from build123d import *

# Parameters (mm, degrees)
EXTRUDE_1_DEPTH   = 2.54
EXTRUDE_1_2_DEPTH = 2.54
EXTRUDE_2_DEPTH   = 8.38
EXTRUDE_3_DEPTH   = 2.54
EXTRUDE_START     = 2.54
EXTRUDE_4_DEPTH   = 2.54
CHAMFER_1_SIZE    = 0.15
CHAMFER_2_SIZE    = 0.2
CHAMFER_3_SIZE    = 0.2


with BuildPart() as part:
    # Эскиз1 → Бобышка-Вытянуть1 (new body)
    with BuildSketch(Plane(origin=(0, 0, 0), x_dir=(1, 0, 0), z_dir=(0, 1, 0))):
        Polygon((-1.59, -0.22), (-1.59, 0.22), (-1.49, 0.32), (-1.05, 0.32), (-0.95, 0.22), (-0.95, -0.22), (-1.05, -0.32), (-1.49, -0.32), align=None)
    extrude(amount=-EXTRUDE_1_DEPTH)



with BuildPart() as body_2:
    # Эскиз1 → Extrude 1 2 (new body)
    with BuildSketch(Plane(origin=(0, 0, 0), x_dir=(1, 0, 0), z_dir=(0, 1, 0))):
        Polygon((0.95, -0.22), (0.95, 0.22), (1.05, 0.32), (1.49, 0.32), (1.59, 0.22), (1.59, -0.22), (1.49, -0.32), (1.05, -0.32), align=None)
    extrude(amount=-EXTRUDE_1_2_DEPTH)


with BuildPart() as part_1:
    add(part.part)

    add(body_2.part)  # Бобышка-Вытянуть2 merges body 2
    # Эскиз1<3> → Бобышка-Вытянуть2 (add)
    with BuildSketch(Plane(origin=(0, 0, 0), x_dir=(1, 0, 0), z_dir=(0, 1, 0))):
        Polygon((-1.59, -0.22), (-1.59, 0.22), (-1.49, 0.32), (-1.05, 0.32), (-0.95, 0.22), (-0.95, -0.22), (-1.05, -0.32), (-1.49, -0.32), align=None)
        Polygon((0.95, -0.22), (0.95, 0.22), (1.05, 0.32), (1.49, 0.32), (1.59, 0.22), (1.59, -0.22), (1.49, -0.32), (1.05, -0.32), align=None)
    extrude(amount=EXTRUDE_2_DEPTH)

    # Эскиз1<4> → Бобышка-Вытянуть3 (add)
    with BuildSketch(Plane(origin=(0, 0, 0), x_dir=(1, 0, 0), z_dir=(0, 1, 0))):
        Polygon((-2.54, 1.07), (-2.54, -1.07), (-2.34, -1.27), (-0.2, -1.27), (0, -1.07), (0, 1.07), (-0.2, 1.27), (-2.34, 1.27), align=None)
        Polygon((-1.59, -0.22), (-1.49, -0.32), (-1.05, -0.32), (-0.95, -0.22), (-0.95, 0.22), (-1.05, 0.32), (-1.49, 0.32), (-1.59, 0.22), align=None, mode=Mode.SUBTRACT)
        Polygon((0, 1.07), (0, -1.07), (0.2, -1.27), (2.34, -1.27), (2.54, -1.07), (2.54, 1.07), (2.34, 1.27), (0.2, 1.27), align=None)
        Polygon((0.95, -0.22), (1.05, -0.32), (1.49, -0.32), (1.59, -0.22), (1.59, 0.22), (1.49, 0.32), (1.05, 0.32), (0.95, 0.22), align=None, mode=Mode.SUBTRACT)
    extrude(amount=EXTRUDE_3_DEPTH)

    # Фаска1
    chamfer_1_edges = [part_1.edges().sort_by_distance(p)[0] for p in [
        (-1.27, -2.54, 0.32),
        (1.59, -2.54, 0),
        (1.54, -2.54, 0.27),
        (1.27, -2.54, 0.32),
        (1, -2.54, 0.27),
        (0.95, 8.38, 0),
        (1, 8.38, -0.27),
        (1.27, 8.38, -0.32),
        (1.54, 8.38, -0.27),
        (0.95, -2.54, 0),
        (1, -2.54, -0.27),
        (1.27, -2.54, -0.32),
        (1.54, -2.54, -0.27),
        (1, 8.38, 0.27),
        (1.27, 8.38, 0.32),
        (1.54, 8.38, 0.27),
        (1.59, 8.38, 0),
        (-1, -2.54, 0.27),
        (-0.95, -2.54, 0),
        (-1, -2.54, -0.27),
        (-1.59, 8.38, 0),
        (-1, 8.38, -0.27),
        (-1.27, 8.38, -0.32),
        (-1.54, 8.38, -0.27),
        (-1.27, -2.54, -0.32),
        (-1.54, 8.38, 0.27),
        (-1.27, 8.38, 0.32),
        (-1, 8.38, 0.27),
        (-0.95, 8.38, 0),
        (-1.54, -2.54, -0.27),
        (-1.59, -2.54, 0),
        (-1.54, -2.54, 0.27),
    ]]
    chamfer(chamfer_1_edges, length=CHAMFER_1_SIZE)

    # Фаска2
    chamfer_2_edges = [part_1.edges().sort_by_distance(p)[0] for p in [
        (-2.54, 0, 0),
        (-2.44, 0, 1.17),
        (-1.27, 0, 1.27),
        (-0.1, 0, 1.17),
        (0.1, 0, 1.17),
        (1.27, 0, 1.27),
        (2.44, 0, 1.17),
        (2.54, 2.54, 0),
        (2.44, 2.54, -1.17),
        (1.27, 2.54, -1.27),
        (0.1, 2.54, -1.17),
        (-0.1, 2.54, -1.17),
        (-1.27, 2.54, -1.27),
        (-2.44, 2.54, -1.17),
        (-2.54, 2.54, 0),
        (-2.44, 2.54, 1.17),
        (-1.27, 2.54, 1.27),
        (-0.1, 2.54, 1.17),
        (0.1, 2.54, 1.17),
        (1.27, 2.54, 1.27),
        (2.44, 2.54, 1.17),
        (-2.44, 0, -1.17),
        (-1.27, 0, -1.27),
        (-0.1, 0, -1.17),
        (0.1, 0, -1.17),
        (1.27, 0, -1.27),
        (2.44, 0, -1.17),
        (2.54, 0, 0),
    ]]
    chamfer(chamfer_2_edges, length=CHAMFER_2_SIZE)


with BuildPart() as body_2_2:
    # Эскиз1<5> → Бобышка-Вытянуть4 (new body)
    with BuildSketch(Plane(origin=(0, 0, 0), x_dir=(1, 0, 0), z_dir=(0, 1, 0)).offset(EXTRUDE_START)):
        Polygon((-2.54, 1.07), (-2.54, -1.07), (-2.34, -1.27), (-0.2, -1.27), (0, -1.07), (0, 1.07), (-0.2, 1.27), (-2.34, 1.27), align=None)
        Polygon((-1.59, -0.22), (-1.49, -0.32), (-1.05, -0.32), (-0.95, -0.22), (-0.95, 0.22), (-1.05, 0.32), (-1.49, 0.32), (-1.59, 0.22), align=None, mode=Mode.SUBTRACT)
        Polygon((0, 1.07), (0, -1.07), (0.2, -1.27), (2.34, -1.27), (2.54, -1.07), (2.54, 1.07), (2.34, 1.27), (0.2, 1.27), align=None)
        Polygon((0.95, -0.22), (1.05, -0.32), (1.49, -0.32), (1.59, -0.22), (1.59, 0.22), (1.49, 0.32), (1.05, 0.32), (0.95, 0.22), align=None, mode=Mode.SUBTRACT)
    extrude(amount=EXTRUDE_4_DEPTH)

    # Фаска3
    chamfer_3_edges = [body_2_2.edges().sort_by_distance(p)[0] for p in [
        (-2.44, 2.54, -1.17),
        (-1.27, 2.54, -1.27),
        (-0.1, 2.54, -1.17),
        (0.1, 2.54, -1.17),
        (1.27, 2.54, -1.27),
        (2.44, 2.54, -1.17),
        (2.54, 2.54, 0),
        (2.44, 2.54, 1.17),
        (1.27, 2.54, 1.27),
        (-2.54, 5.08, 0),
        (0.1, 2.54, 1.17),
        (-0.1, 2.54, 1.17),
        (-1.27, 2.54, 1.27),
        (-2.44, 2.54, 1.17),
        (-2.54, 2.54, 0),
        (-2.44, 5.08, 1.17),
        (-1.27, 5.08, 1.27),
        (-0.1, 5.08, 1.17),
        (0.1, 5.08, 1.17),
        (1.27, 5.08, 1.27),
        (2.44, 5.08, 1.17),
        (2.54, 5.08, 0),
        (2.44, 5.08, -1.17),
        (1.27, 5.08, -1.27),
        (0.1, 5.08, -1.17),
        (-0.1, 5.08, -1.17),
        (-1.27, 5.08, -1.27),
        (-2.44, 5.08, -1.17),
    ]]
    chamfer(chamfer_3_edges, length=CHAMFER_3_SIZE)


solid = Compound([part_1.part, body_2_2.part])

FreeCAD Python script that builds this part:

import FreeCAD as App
import Part
import Sketcher

V = App.Vector


def edges_at(feature, points):
    """Names of the edges that pass closest to the given points."""
    edges = feature.Shape.Edges
    near = lambda p: min(range(len(edges)), key=lambda i: edges[i].distToShape(Part.Vertex(*p))[0])
    return sorted({f"Edge{near(p) + 1}" for p in points})

doc = App.newDocument("Part")
body = doc.addObject("PartDesign::Body", "Body")

# Sketch on XZ plane
sketch1 = body.newObject("Sketcher::SketchObject", "Sketch")
sketch1.AttachmentSupport = (doc.getObject("XZ_Plane"), [""])
sketch1.MapMode = "FlatFace"
sketch1.addGeometry(Part.LineSegment(V(-1.59, -0.22, 0), V(-1.59, 0.22, 0)), False)
sketch1.addGeometry(Part.LineSegment(V(-1.59, 0.22, 0), V(-1.49, 0.32, 0)), False)
sketch1.addGeometry(Part.LineSegment(V(-1.49, 0.32, 0), V(-1.05, 0.32, 0)), False)
sketch1.addGeometry(Part.LineSegment(V(-1.05, 0.32, 0), V(-0.95, 0.22, 0)), False)
sketch1.addGeometry(Part.LineSegment(V(-0.95, 0.22, 0), V(-0.95, -0.22, 0)), False)
sketch1.addGeometry(Part.LineSegment(V(-0.95, -0.22, 0), V(-1.05, -0.32, 0)), False)
sketch1.addGeometry(Part.LineSegment(V(-1.05, -0.32, 0), V(-1.49, -0.32, 0)), False)
sketch1.addGeometry(Part.LineSegment(V(-1.49, -0.32, 0), V(-1.59, -0.22, 0)), False)
sketch1.addConstraint(Sketcher.Constraint("Coincident", 0, 2, 1, 1))
sketch1.addConstraint(Sketcher.Constraint("Coincident", 1, 2, 2, 1))
sketch1.addConstraint(Sketcher.Constraint("Coincident", 2, 2, 3, 1))
sketch1.addConstraint(Sketcher.Constraint("Coincident", 3, 2, 4, 1))
sketch1.addConstraint(Sketcher.Constraint("Coincident", 4, 2, 5, 1))
sketch1.addConstraint(Sketcher.Constraint("Coincident", 5, 2, 6, 1))
sketch1.addConstraint(Sketcher.Constraint("Coincident", 6, 2, 7, 1))
sketch1.addConstraint(Sketcher.Constraint("Coincident", 7, 2, 0, 1))
sketch1.addConstraint(Sketcher.Constraint("Vertical", 0))
sketch1.addConstraint(Sketcher.Constraint("Horizontal", 2))
sketch1.addConstraint(Sketcher.Constraint("Vertical", 4))
sketch1.addConstraint(Sketcher.Constraint("Horizontal", 6))
sketch1.addConstraint(Sketcher.Constraint("Symmetric", 2, 2, 5, 2, -1))
sketch1.addConstraint(Sketcher.Constraint("Perpendicular", 1, 3))
sketch1.addConstraint(Sketcher.Constraint("Perpendicular", 3, 5))
sketch1.addConstraint(Sketcher.Constraint("Perpendicular", 5, 7))
sketch1.addConstraint(Sketcher.Constraint("Horizontal", 0, 2, 3, 2))
sketch1.addConstraint(Sketcher.Constraint("Horizontal", 4, 2, 7, 2))
sketch1.addConstraint(Sketcher.Constraint("Vertical", 1, 2, 6, 2))
sketch1.addConstraint(Sketcher.Constraint("Equal", 6, 0))
sketch1.addConstraint(Sketcher.Constraint("DistanceX", 2, 1, 2, 2, 0.44))
sketch1.addConstraint(Sketcher.Constraint("DistanceX", 0, 2, 1, 2, 0.1))
sketch1.addConstraint(Sketcher.Constraint("DistanceX", 0, 2, -1, 1, 1.59))
pad1 = body.newObject("PartDesign::Pad", "Pad")
pad1.Profile = sketch1
pad1.Length = 2.54
body2 = doc.addObject("PartDesign::Body", "Body001")

# Sketch on XZ plane
sketch2 = body2.newObject("Sketcher::SketchObject", "Sketch001")
sketch2.AttachmentSupport = (doc.getObject("XZ_Plane001"), [""])
sketch2.MapMode = "FlatFace"
sketch2.addGeometry(Part.LineSegment(V(0.95, -0.22, 0), V(0.95, 0.22, 0)), False)
sketch2.addGeometry(Part.LineSegment(V(0.95, 0.22, 0), V(1.05, 0.32, 0)), False)
sketch2.addGeometry(Part.LineSegment(V(1.05, 0.32, 0), V(1.49, 0.32, 0)), False)
sketch2.addGeometry(Part.LineSegment(V(1.49, 0.32, 0), V(1.59, 0.22, 0)), False)
sketch2.addGeometry(Part.LineSegment(V(1.59, 0.22, 0), V(1.59, -0.22, 0)), False)
sketch2.addGeometry(Part.LineSegment(V(1.59, -0.22, 0), V(1.49, -0.32, 0)), False)
sketch2.addGeometry(Part.LineSegment(V(1.49, -0.32, 0), V(1.05, -0.32, 0)), False)
sketch2.addGeometry(Part.LineSegment(V(1.05, -0.32, 0), V(0.95, -0.22, 0)), False)
sketch2.addConstraint(Sketcher.Constraint("Coincident", 0, 2, 1, 1))
sketch2.addConstraint(Sketcher.Constraint("Coincident", 1, 2, 2, 1))
sketch2.addConstraint(Sketcher.Constraint("Coincident", 2, 2, 3, 1))
sketch2.addConstraint(Sketcher.Constraint("Coincident", 3, 2, 4, 1))
sketch2.addConstraint(Sketcher.Constraint("Coincident", 4, 2, 5, 1))
sketch2.addConstraint(Sketcher.Constraint("Coincident", 5, 2, 6, 1))
sketch2.addConstraint(Sketcher.Constraint("Coincident", 6, 2, 7, 1))
sketch2.addConstraint(Sketcher.Constraint("Coincident", 7, 2, 0, 1))
sketch2.addConstraint(Sketcher.Constraint("Vertical", 0))
sketch2.addConstraint(Sketcher.Constraint("Horizontal", 2))
sketch2.addConstraint(Sketcher.Constraint("Vertical", 4))
sketch2.addConstraint(Sketcher.Constraint("Horizontal", 6))
sketch2.addConstraint(Sketcher.Constraint("Symmetric", 2, 2, 5, 2, -1))
sketch2.addConstraint(Sketcher.Constraint("Perpendicular", 1, 3))
sketch2.addConstraint(Sketcher.Constraint("Perpendicular", 3, 5))
sketch2.addConstraint(Sketcher.Constraint("Perpendicular", 5, 7))
sketch2.addConstraint(Sketcher.Constraint("Horizontal", 0, 2, 3, 2))
sketch2.addConstraint(Sketcher.Constraint("Horizontal", 4, 2, 7, 2))
sketch2.addConstraint(Sketcher.Constraint("Vertical", 1, 2, 6, 2))
sketch2.addConstraint(Sketcher.Constraint("Equal", 6, 0))
sketch2.addConstraint(Sketcher.Constraint("DistanceX", 2, 1, 2, 2, 0.44))
sketch2.addConstraint(Sketcher.Constraint("DistanceX", 0, 2, 1, 2, 0.1))
sketch2.addConstraint(Sketcher.Constraint("DistanceX", -1, 1, 0, 2, 0.95))
pad2 = body2.newObject("PartDesign::Pad", "Pad001")
pad2.Profile = sketch2
pad2.Length = 2.54
body.AllowCompound = True
doc.recompute()

boolean = body.newObject("PartDesign::Boolean", "Boolean")
boolean.Type = "Fuse"
boolean.addObjects([body2])

# Sketch on XZ plane
sketch3 = body.newObject("Sketcher::SketchObject", "Sketch002")
sketch3.AttachmentSupport = (doc.getObject("XZ_Plane"), [""])
sketch3.MapMode = "FlatFace"
sketch3.addGeometry(Part.LineSegment(V(-1.59, -0.22, 0), V(-1.59, 0.22, 0)), False)
sketch3.addGeometry(Part.LineSegment(V(-1.59, 0.22, 0), V(-1.49, 0.32, 0)), False)
sketch3.addGeometry(Part.LineSegment(V(-1.49, 0.32, 0), V(-1.05, 0.32, 0)), False)
sketch3.addGeometry(Part.LineSegment(V(-1.05, 0.32, 0), V(-0.95, 0.22, 0)), False)
sketch3.addGeometry(Part.LineSegment(V(-0.95, 0.22, 0), V(-0.95, -0.22, 0)), False)
sketch3.addGeometry(Part.LineSegment(V(-0.95, -0.22, 0), V(-1.05, -0.32, 0)), False)
sketch3.addGeometry(Part.LineSegment(V(-1.05, -0.32, 0), V(-1.49, -0.32, 0)), False)
sketch3.addGeometry(Part.LineSegment(V(-1.49, -0.32, 0), V(-1.59, -0.22, 0)), False)
sketch3.addGeometry(Part.LineSegment(V(0.95, -0.22, 0), V(0.95, 0.22, 0)), False)
sketch3.addGeometry(Part.LineSegment(V(0.95, 0.22, 0), V(1.05, 0.32, 0)), False)
sketch3.addGeometry(Part.LineSegment(V(1.05, 0.32, 0), V(1.49, 0.32, 0)), False)
sketch3.addGeometry(Part.LineSegment(V(1.49, 0.32, 0), V(1.59, 0.22, 0)), False)
sketch3.addGeometry(Part.LineSegment(V(1.59, 0.22, 0), V(1.59, -0.22, 0)), False)
sketch3.addGeometry(Part.LineSegment(V(1.59, -0.22, 0), V(1.49, -0.32, 0)), False)
sketch3.addGeometry(Part.LineSegment(V(1.49, -0.32, 0), V(1.05, -0.32, 0)), False)
sketch3.addGeometry(Part.LineSegment(V(1.05, -0.32, 0), V(0.95, -0.22, 0)), False)
sketch3.addConstraint(Sketcher.Constraint("Coincident", 0, 2, 1, 1))
sketch3.addConstraint(Sketcher.Constraint("Coincident", 1, 2, 2, 1))
sketch3.addConstraint(Sketcher.Constraint("Coincident", 2, 2, 3, 1))
sketch3.addConstraint(Sketcher.Constraint("Coincident", 3, 2, 4, 1))
sketch3.addConstraint(Sketcher.Constraint("Coincident", 4, 2, 5, 1))
sketch3.addConstraint(Sketcher.Constraint("Coincident", 5, 2, 6, 1))
sketch3.addConstraint(Sketcher.Constraint("Coincident", 6, 2, 7, 1))
sketch3.addConstraint(Sketcher.Constraint("Coincident", 7, 2, 0, 1))
sketch3.addConstraint(Sketcher.Constraint("Coincident", 8, 2, 9, 1))
sketch3.addConstraint(Sketcher.Constraint("Coincident", 9, 2, 10, 1))
sketch3.addConstraint(Sketcher.Constraint("Coincident", 10, 2, 11, 1))
sketch3.addConstraint(Sketcher.Constraint("Coincident", 11, 2, 12, 1))
sketch3.addConstraint(Sketcher.Constraint("Coincident", 12, 2, 13, 1))
sketch3.addConstraint(Sketcher.Constraint("Coincident", 13, 2, 14, 1))
sketch3.addConstraint(Sketcher.Constraint("Coincident", 14, 2, 15, 1))
sketch3.addConstraint(Sketcher.Constraint("Coincident", 15, 2, 8, 1))
sketch3.addConstraint(Sketcher.Constraint("Vertical", 0))
sketch3.addConstraint(Sketcher.Constraint("Horizontal", 2))
sketch3.addConstraint(Sketcher.Constraint("Vertical", 4))
sketch3.addConstraint(Sketcher.Constraint("Horizontal", 6))
sketch3.addConstraint(Sketcher.Constraint("Vertical", 8))
sketch3.addConstraint(Sketcher.Constraint("Horizontal", 10))
sketch3.addConstraint(Sketcher.Constraint("Vertical", 12))
sketch3.addConstraint(Sketcher.Constraint("Horizontal", 14))
sketch3.addConstraint(Sketcher.Constraint("Symmetric", 4, 2, 8, 2, -1, 1))
sketch3.addConstraint(Sketcher.Constraint("Symmetric", 5, 2, 9, 2, -1, 1))
sketch3.addConstraint(Sketcher.Constraint("Symmetric", 7, 2, 11, 2, -1, 1))
sketch3.addConstraint(Sketcher.Constraint("Symmetric", 1, 2, 13, 2, -1, 1))
sketch3.addConstraint(Sketcher.Constraint("Symmetric", 2, 2, 9, 2, -2))
sketch3.addConstraint(Sketcher.Constraint("Perpendicular", 1, 3))
sketch3.addConstraint(Sketcher.Constraint("Perpendicular", 3, 5))
sketch3.addConstraint(Sketcher.Constraint("Perpendicular", 5, 7))
sketch3.addConstraint(Sketcher.Constraint("Perpendicular", 9, 11))
sketch3.addConstraint(Sketcher.Constraint("Perpendicular", 11, 13))
sketch3.addConstraint(Sketcher.Constraint("Perpendicular", 13, 15))
sketch3.addConstraint(Sketcher.Constraint("Horizontal", 0, 2, 3, 2))
sketch3.addConstraint(Sketcher.Constraint("Horizontal", 4, 2, 7, 2))
sketch3.addConstraint(Sketcher.Constraint("Horizontal", 3, 2, 8, 2))
sketch3.addConstraint(Sketcher.Constraint("Horizontal", 12, 2, 15, 2))
sketch3.addConstraint(Sketcher.Constraint("Equal", 14, 0))
sketch3.addConstraint(Sketcher.Constraint("DistanceX", 2, 2, 8, 2, 2.0))
sketch3.addConstraint(Sketcher.Constraint("DistanceX", 2, 1, 2, 2, 0.44))
sketch3.addConstraint(Sketcher.Constraint("DistanceX", 0, 2, 1, 2, 0.1))
pad3 = body.newObject("PartDesign::Pad", "Pad002")
pad3.Profile = sketch3
pad3.Length = 8.38
pad3.Reversed = True

# Sketch on XZ plane
sketch4 = body.newObject("Sketcher::SketchObject", "Sketch003")
sketch4.AttachmentSupport = (doc.getObject("XZ_Plane"), [""])
sketch4.MapMode = "FlatFace"
sketch4.addGeometry(Part.LineSegment(V(-2.54, -1.07, 0), V(-2.54, 1.07, 0)), False)
sketch4.addGeometry(Part.LineSegment(V(-2.54, 1.07, 0), V(-2.34, 1.27, 0)), False)
sketch4.addGeometry(Part.LineSegment(V(-2.34, 1.27, 0), V(-0.2, 1.27, 0)), False)
sketch4.addGeometry(Part.LineSegment(V(-0.2, 1.27, 0), V(0, 1.07, 0)), False)
sketch4.addGeometry(Part.LineSegment(V(0, 1.07, 0), V(0.2, 1.27, 0)), False)
sketch4.addGeometry(Part.LineSegment(V(0.2, 1.27, 0), V(2.34, 1.27, 0)), False)
sketch4.addGeometry(Part.LineSegment(V(2.34, 1.27, 0), V(2.54, 1.07, 0)), False)
sketch4.addGeometry(Part.LineSegment(V(2.54, 1.07, 0), V(2.54, -1.07, 0)), False)
sketch4.addGeometry(Part.LineSegment(V(2.54, -1.07, 0), V(2.34, -1.27, 0)), False)
sketch4.addGeometry(Part.LineSegment(V(2.34, -1.27, 0), V(0.2, -1.27, 0)), False)
sketch4.addGeometry(Part.LineSegment(V(0.2, -1.27, 0), V(0, -1.07, 0)), False)
sketch4.addGeometry(Part.LineSegment(V(0, -1.07, 0), V(-0.2, -1.27, 0)), False)
sketch4.addGeometry(Part.LineSegment(V(-0.2, -1.27, 0), V(-2.34, -1.27, 0)), False)
sketch4.addGeometry(Part.LineSegment(V(-2.34, -1.27, 0), V(-2.54, -1.07, 0)), False)
sketch4.addGeometry(Part.LineSegment(V(-1.49, 0.32, 0), V(-1.59, 0.22, 0)), False)
sketch4.addGeometry(Part.LineSegment(V(-1.59, 0.22, 0), V(-1.59, -0.22, 0)), False)
sketch4.addGeometry(Part.LineSegment(V(-1.59, -0.22, 0), V(-1.49, -0.32, 0)), False)
sketch4.addGeometry(Part.LineSegment(V(-1.49, -0.32, 0), V(-1.05, -0.32, 0)), False)
sketch4.addGeometry(Part.LineSegment(V(-1.05, -0.32, 0), V(-0.95, -0.22, 0)), False)
sketch4.addGeometry(Part.LineSegment(V(-0.95, -0.22, 0), V(-0.95, 0.22, 0)), False)
sketch4.addGeometry(Part.LineSegment(V(-0.95, 0.22, 0), V(-1.05, 0.32, 0)), False)
sketch4.addGeometry(Part.LineSegment(V(-1.05, 0.32, 0), V(-1.49, 0.32, 0)), False)
sketch4.addGeometry(Part.LineSegment(V(1.05, 0.32, 0), V(0.95, 0.22, 0)), False)
sketch4.addGeometry(Part.LineSegment(V(0.95, 0.22, 0), V(0.95, -0.22, 0)), False)
sketch4.addGeometry(Part.LineSegment(V(0.95, -0.22, 0), V(1.05, -0.32, 0)), False)
sketch4.addGeometry(Part.LineSegment(V(1.05, -0.32, 0), V(1.49, -0.32, 0)), False)
sketch4.addGeometry(Part.LineSegment(V(1.49, -0.32, 0), V(1.59, -0.22, 0)), False)
sketch4.addGeometry(Part.LineSegment(V(1.59, -0.22, 0), V(1.59, 0.22, 0)), False)
sketch4.addGeometry(Part.LineSegment(V(1.59, 0.22, 0), V(1.49, 0.32, 0)), False)
sketch4.addGeometry(Part.LineSegment(V(1.49, 0.32, 0), V(1.05, 0.32, 0)), False)
sketch4.addConstraint(Sketcher.Constraint("Coincident", 0, 2, 1, 1))
sketch4.addConstraint(Sketcher.Constraint("Coincident", 1, 2, 2, 1))
sketch4.addConstraint(Sketcher.Constraint("Coincident", 2, 2, 3, 1))
sketch4.addConstraint(Sketcher.Constraint("Coincident", 3, 2, 4, 1))
sketch4.addConstraint(Sketcher.Constraint("Coincident", 4, 2, 5, 1))
sketch4.addConstraint(Sketcher.Constraint("Coincident", 5, 2, 6, 1))
sketch4.addConstraint(Sketcher.Constraint("Coincident", 6, 2, 7, 1))
sketch4.addConstraint(Sketcher.Constraint("Coincident", 7, 2, 8, 1))
sketch4.addConstraint(Sketcher.Constraint("Coincident", 8, 2, 9, 1))
sketch4.addConstraint(Sketcher.Constraint("Coincident", 9, 2, 10, 1))
sketch4.addConstraint(Sketcher.Constraint("Coincident", 10, 2, 11, 1))
sketch4.addConstraint(Sketcher.Constraint("Coincident", 11, 2, 12, 1))
sketch4.addConstraint(Sketcher.Constraint("Coincident", 12, 2, 13, 1))
sketch4.addConstraint(Sketcher.Constraint("Coincident", 13, 2, 0, 1))
sketch4.addConstraint(Sketcher.Constraint("Coincident", 14, 2, 15, 1))
sketch4.addConstraint(Sketcher.Constraint("Coincident", 15, 2, 16, 1))
sketch4.addConstraint(Sketcher.Constraint("Coincident", 16, 2, 17, 1))
sketch4.addConstraint(Sketcher.Constraint("Coincident", 17, 2, 18, 1))
sketch4.addConstraint(Sketcher.Constraint("Coincident", 18, 2, 19, 1))
sketch4.addConstraint(Sketcher.Constraint("Coincident", 19, 2, 20, 1))
sketch4.addConstraint(Sketcher.Constraint("Coincident", 20, 2, 21, 1))
sketch4.addConstraint(Sketcher.Constraint("Coincident", 21, 2, 14, 1))
sketch4.addConstraint(Sketcher.Constraint("Coincident", 22, 2, 23, 1))
sketch4.addConstraint(Sketcher.Constraint("Coincident", 23, 2, 24, 1))
sketch4.addConstraint(Sketcher.Constraint("Coincident", 24, 2, 25, 1))
sketch4.addConstraint(Sketcher.Constraint("Coincident", 25, 2, 26, 1))
sketch4.addConstraint(Sketcher.Constraint("Coincident", 26, 2, 27, 1))
sketch4.addConstraint(Sketcher.Constraint("Coincident", 27, 2, 28, 1))
sketch4.addConstraint(Sketcher.Constraint("Coincident", 28, 2, 29, 1))
sketch4.addConstraint(Sketcher.Constraint("Coincident", 29, 2, 22, 1))
sketch4.addConstraint(Sketcher.Constraint("Vertical", 0))
sketch4.addConstraint(Sketcher.Constraint("Horizontal", 2))
sketch4.addConstraint(Sketcher.Constraint("Horizontal", 5))
sketch4.addConstraint(Sketcher.Constraint("Vertical", 7))
sketch4.addConstraint(Sketcher.Constraint("Horizontal", 9))
sketch4.addConstraint(Sketcher.Constraint("Horizontal", 12))
sketch4.addConstraint(Sketcher.Constraint("Vertical", 15))
sketch4.addConstraint(Sketcher.Constraint("Horizontal", 17))
sketch4.addConstraint(Sketcher.Constraint("Vertical", 19))
sketch4.addConstraint(Sketcher.Constraint("Horizontal", 21))
sketch4.addConstraint(Sketcher.Constraint("Vertical", 23))
sketch4.addConstraint(Sketcher.Constraint("Horizontal", 25))
sketch4.addConstraint(Sketcher.Constraint("Vertical", 27))
sketch4.addConstraint(Sketcher.Constraint("Horizontal", 29))
sketch4.addConstraint(Sketcher.Constraint("Symmetric", 0, 2, 7, 2, -1, 1))
sketch4.addConstraint(Sketcher.Constraint("Symmetric", 1, 2, 8, 2, -1, 1))
sketch4.addConstraint(Sketcher.Constraint("Symmetric", 3, 2, 10, 2, -1, 1))
sketch4.addConstraint(Sketcher.Constraint("Symmetric", 4, 2, 11, 2, -1, 1))
sketch4.addConstraint(Sketcher.Constraint("Symmetric", 18, 2, 22, 2, -1, 1))
sketch4.addConstraint(Sketcher.Constraint("Symmetric", 20, 2, 24, 2, -1, 1))
sketch4.addConstraint(Sketcher.Constraint("Symmetric", 14, 2, 26, 2, -1, 1))
sketch4.addConstraint(Sketcher.Constraint("Symmetric", 16, 2, 28, 2, -1, 1))
sketch4.addConstraint(Sketcher.Constraint("Symmetric", 2, 2, 4, 2, -2))
sketch4.addConstraint(Sketcher.Constraint("Symmetric", 17, 2, 24, 2, -2))
sketch4.addConstraint(Sketcher.Constraint("PointOnObject", 3, 2, -2))
sketch4.addConstraint(Sketcher.Constraint("Perpendicular", 1, 3))
sketch4.addConstraint(Sketcher.Constraint("Perpendicular", 3, 4))
sketch4.addConstraint(Sketcher.Constraint("Perpendicular", 4, 6))
sketch4.addConstraint(Sketcher.Constraint("Perpendicular", 8, 10))
sketch4.addConstraint(Sketcher.Constraint("Perpendicular", 11, 13))
sketch4.addConstraint(Sketcher.Constraint("Perpendicular", 13, 14))
sketch4.addConstraint(Sketcher.Constraint("Perpendicular", 14, 16))
sketch4.addConstraint(Sketcher.Constraint("Perpendicular", 16, 18))
sketch4.addConstraint(Sketcher.Constraint("Perpendicular", 18, 20))
sketch4.addConstraint(Sketcher.Constraint("Perpendicular", 20, 22))
sketch4.addConstraint(Sketcher.Constraint("Perpendicular", 22, 24))
sketch4.addConstraint(Sketcher.Constraint("Perpendicular", 24, 26))
sketch4.addConstraint(Sketcher.Constraint("Perpendicular", 26, 28))
sketch4.addConstraint(Sketcher.Constraint("Horizontal", 0, 2, 3, 2))
sketch4.addConstraint(Sketcher.Constraint("Horizontal", 3, 2, 6, 2))
sketch4.addConstraint(Sketcher.Constraint("Horizontal", 10, 2, 13, 2))
sketch4.addConstraint(Sketcher.Constraint("Horizontal", 15, 2, 18, 2))
sketch4.addConstraint(Sketcher.Constraint("Horizontal", 14, 2, 19, 2))
sketch4.addConstraint(Sketcher.Constraint("Equal", 12, 0))
sketch4.addConstraint(Sketcher.Constraint("Equal", 29, 15))
sketch4.addConstraint(Sketcher.Constraint("DistanceX", 2, 1, 2, 2, 2.14))
sketch4.addConstraint(Sketcher.Constraint("DistanceX", 17, 1, 17, 2, 0.44))
sketch4.addConstraint(Sketcher.Constraint("DistanceX", 2, 2, -1, 1, 0.2))
sketch4.addConstraint(Sketcher.Constraint("DistanceX", 15, 2, 16, 2, 0.1))
sketch4.addConstraint(Sketcher.Constraint("DistanceX", 14, 2, -1, 1, 1.59))
pad4 = body.newObject("PartDesign::Pad", "Pad003")
pad4.Profile = sketch4
pad4.Length = 2.54
pad4.Reversed = True
doc.recompute()

chamfer = body.newObject("PartDesign::Chamfer", "Chamfer")
chamfer.Base = (pad4, edges_at(pad4, [
    (-1.27, -2.54, 0.32),
    (1.59, -2.54, 0),
    (1.54, -2.54, 0.27),
    (1.27, -2.54, 0.32),
    (1, -2.54, 0.27),
    (0.95, 8.38, 0),
    (1, 8.38, -0.27),
    (1.27, 8.38, -0.32),
    (1.54, 8.38, -0.27),
    (0.95, -2.54, 0),
    (1, -2.54, -0.27),
    (1.27, -2.54, -0.32),
    (1.54, -2.54, -0.27),
    (1, 8.38, 0.27),
    (1.27, 8.38, 0.32),
    (1.54, 8.38, 0.27),
    (1.59, 8.38, 0),
    (-1, -2.54, 0.27),
    (-0.95, -2.54, 0),
    (-1, -2.54, -0.27),
    (-1.59, 8.38, 0),
    (-1, 8.38, -0.27),
    (-1.27, 8.38, -0.32),
    (-1.54, 8.38, -0.27),
    (-1.27, -2.54, -0.32),
    (-1.54, 8.38, 0.27),
    (-1.27, 8.38, 0.32),
    (-1, 8.38, 0.27),
    (-0.95, 8.38, 0),
    (-1.54, -2.54, -0.27),
    (-1.59, -2.54, 0),
    (-1.54, -2.54, 0.27),
]))
chamfer.Size = 0.15
doc.recompute()

chamfer2 = body.newObject("PartDesign::Chamfer", "Chamfer001")
chamfer2.Base = (chamfer, edges_at(chamfer, [
    (-2.54, 0, 0),
    (-2.44, 0, 1.17),
    (-1.27, 0, 1.27),
    (-0.1, 0, 1.17),
    (0.1, 0, 1.17),
    (1.27, 0, 1.27),
    (2.44, 0, 1.17),
    (2.54, 2.54, 0),
    (2.44, 2.54, -1.17),
    (1.27, 2.54, -1.27),
    (0.1, 2.54, -1.17),
    (-0.1, 2.54, -1.17),
    (-1.27, 2.54, -1.27),
    (-2.44, 2.54, -1.17),
    (-2.54, 2.54, 0),
    (-2.44, 2.54, 1.17),
    (-1.27, 2.54, 1.27),
    (-0.1, 2.54, 1.17),
    (0.1, 2.54, 1.17),
    (1.27, 2.54, 1.27),
    (2.44, 2.54, 1.17),
    (-2.44, 0, -1.17),
    (-1.27, 0, -1.27),
    (-0.1, 0, -1.17),
    (0.1, 0, -1.17),
    (1.27, 0, -1.27),
    (2.44, 0, -1.17),
    (2.54, 0, 0),
]))
chamfer2.Size = 0.2
body3 = doc.addObject("PartDesign::Body", "Body002")

# Sketch on XZ plane
sketch5 = body3.newObject("Sketcher::SketchObject", "Sketch004")
sketch5.AttachmentSupport = (doc.getObject("XZ_Plane002"), [""])
sketch5.MapMode = "FlatFace"
sketch5.AttachmentOffset = App.Placement(V(0, 0, -2.54), App.Rotation())
sketch5.addGeometry(Part.LineSegment(V(-2.54, -1.07, 0), V(-2.54, 1.07, 0)), False)
sketch5.addGeometry(Part.LineSegment(V(-2.54, 1.07, 0), V(-2.34, 1.27, 0)), False)
sketch5.addGeometry(Part.LineSegment(V(-2.34, 1.27, 0), V(-0.2, 1.27, 0)), False)
sketch5.addGeometry(Part.LineSegment(V(-0.2, 1.27, 0), V(0, 1.07, 0)), False)
sketch5.addGeometry(Part.LineSegment(V(0, 1.07, 0), V(0.2, 1.27, 0)), False)
sketch5.addGeometry(Part.LineSegment(V(0.2, 1.27, 0), V(2.34, 1.27, 0)), False)
sketch5.addGeometry(Part.LineSegment(V(2.34, 1.27, 0), V(2.54, 1.07, 0)), False)
sketch5.addGeometry(Part.LineSegment(V(2.54, 1.07, 0), V(2.54, -1.07, 0)), False)
sketch5.addGeometry(Part.LineSegment(V(2.54, -1.07, 0), V(2.34, -1.27, 0)), False)
sketch5.addGeometry(Part.LineSegment(V(2.34, -1.27, 0), V(0.2, -1.27, 0)), False)
sketch5.addGeometry(Part.LineSegment(V(0.2, -1.27, 0), V(0, -1.07, 0)), False)
sketch5.addGeometry(Part.LineSegment(V(0, -1.07, 0), V(-0.2, -1.27, 0)), False)
sketch5.addGeometry(Part.LineSegment(V(-0.2, -1.27, 0), V(-2.34, -1.27, 0)), False)
sketch5.addGeometry(Part.LineSegment(V(-2.34, -1.27, 0), V(-2.54, -1.07, 0)), False)
sketch5.addGeometry(Part.LineSegment(V(-1.49, 0.32, 0), V(-1.59, 0.22, 0)), False)
sketch5.addGeometry(Part.LineSegment(V(-1.59, 0.22, 0), V(-1.59, -0.22, 0)), False)
sketch5.addGeometry(Part.LineSegment(V(-1.59, -0.22, 0), V(-1.49, -0.32, 0)), False)
sketch5.addGeometry(Part.LineSegment(V(-1.49, -0.32, 0), V(-1.05, -0.32, 0)), False)
sketch5.addGeometry(Part.LineSegment(V(-1.05, -0.32, 0), V(-0.95, -0.22, 0)), False)
sketch5.addGeometry(Part.LineSegment(V(-0.95, -0.22, 0), V(-0.95, 0.22, 0)), False)
sketch5.addGeometry(Part.LineSegment(V(-0.95, 0.22, 0), V(-1.05, 0.32, 0)), False)
sketch5.addGeometry(Part.LineSegment(V(-1.05, 0.32, 0), V(-1.49, 0.32, 0)), False)
sketch5.addGeometry(Part.LineSegment(V(1.05, 0.32, 0), V(0.95, 0.22, 0)), False)
sketch5.addGeometry(Part.LineSegment(V(0.95, 0.22, 0), V(0.95, -0.22, 0)), False)
sketch5.addGeometry(Part.LineSegment(V(0.95, -0.22, 0), V(1.05, -0.32, 0)), False)
sketch5.addGeometry(Part.LineSegment(V(1.05, -0.32, 0), V(1.49, -0.32, 0)), False)
sketch5.addGeometry(Part.LineSegment(V(1.49, -0.32, 0), V(1.59, -0.22, 0)), False)
sketch5.addGeometry(Part.LineSegment(V(1.59, -0.22, 0), V(1.59, 0.22, 0)), False)
sketch5.addGeometry(Part.LineSegment(V(1.59, 0.22, 0), V(1.49, 0.32, 0)), False)
sketch5.addGeometry(Part.LineSegment(V(1.49, 0.32, 0), V(1.05, 0.32, 0)), False)
sketch5.addConstraint(Sketcher.Constraint("Coincident", 0, 2, 1, 1))
sketch5.addConstraint(Sketcher.Constraint("Coincident", 1, 2, 2, 1))
sketch5.addConstraint(Sketcher.Constraint("Coincident", 2, 2, 3, 1))
sketch5.addConstraint(Sketcher.Constraint("Coincident", 3, 2, 4, 1))
sketch5.addConstraint(Sketcher.Constraint("Coincident", 4, 2, 5, 1))
sketch5.addConstraint(Sketcher.Constraint("Coincident", 5, 2, 6, 1))
sketch5.addConstraint(Sketcher.Constraint("Coincident", 6, 2, 7, 1))
sketch5.addConstraint(Sketcher.Constraint("Coincident", 7, 2, 8, 1))
sketch5.addConstraint(Sketcher.Constraint("Coincident", 8, 2, 9, 1))
sketch5.addConstraint(Sketcher.Constraint("Coincident", 9, 2, 10, 1))
sketch5.addConstraint(Sketcher.Constraint("Coincident", 10, 2, 11, 1))
sketch5.addConstraint(Sketcher.Constraint("Coincident", 11, 2, 12, 1))
sketch5.addConstraint(Sketcher.Constraint("Coincident", 12, 2, 13, 1))
sketch5.addConstraint(Sketcher.Constraint("Coincident", 13, 2, 0, 1))
sketch5.addConstraint(Sketcher.Constraint("Coincident", 14, 2, 15, 1))
sketch5.addConstraint(Sketcher.Constraint("Coincident", 15, 2, 16, 1))
sketch5.addConstraint(Sketcher.Constraint("Coincident", 16, 2, 17, 1))
sketch5.addConstraint(Sketcher.Constraint("Coincident", 17, 2, 18, 1))
sketch5.addConstraint(Sketcher.Constraint("Coincident", 18, 2, 19, 1))
sketch5.addConstraint(Sketcher.Constraint("Coincident", 19, 2, 20, 1))
sketch5.addConstraint(Sketcher.Constraint("Coincident", 20, 2, 21, 1))
sketch5.addConstraint(Sketcher.Constraint("Coincident", 21, 2, 14, 1))
sketch5.addConstraint(Sketcher.Constraint("Coincident", 22, 2, 23, 1))
sketch5.addConstraint(Sketcher.Constraint("Coincident", 23, 2, 24, 1))
sketch5.addConstraint(Sketcher.Constraint("Coincident", 24, 2, 25, 1))
sketch5.addConstraint(Sketcher.Constraint("Coincident", 25, 2, 26, 1))
sketch5.addConstraint(Sketcher.Constraint("Coincident", 26, 2, 27, 1))
sketch5.addConstraint(Sketcher.Constraint("Coincident", 27, 2, 28, 1))
sketch5.addConstraint(Sketcher.Constraint("Coincident", 28, 2, 29, 1))
sketch5.addConstraint(Sketcher.Constraint("Coincident", 29, 2, 22, 1))
sketch5.addConstraint(Sketcher.Constraint("Vertical", 0))
sketch5.addConstraint(Sketcher.Constraint("Horizontal", 2))
sketch5.addConstraint(Sketcher.Constraint("Horizontal", 5))
sketch5.addConstraint(Sketcher.Constraint("Vertical", 7))
sketch5.addConstraint(Sketcher.Constraint("Horizontal", 9))
sketch5.addConstraint(Sketcher.Constraint("Horizontal", 12))
sketch5.addConstraint(Sketcher.Constraint("Vertical", 15))
sketch5.addConstraint(Sketcher.Constraint("Horizontal", 17))
sketch5.addConstraint(Sketcher.Constraint("Vertical", 19))
sketch5.addConstraint(Sketcher.Constraint("Horizontal", 21))
sketch5.addConstraint(Sketcher.Constraint("Vertical", 23))
sketch5.addConstraint(Sketcher.Constraint("Horizontal", 25))
sketch5.addConstraint(Sketcher.Constraint("Vertical", 27))
sketch5.addConstraint(Sketcher.Constraint("Horizontal", 29))
sketch5.addConstraint(Sketcher.Constraint("Symmetric", 0, 2, 7, 2, -1, 1))
sketch5.addConstraint(Sketcher.Constraint("Symmetric", 1, 2, 8, 2, -1, 1))
sketch5.addConstraint(Sketcher.Constraint("Symmetric", 3, 2, 10, 2, -1, 1))
sketch5.addConstraint(Sketcher.Constraint("Symmetric", 4, 2, 11, 2, -1, 1))
sketch5.addConstraint(Sketcher.Constraint("Symmetric", 18, 2, 22, 2, -1, 1))
sketch5.addConstraint(Sketcher.Constraint("Symmetric", 20, 2, 24, 2, -1, 1))
sketch5.addConstraint(Sketcher.Constraint("Symmetric", 14, 2, 26, 2, -1, 1))
sketch5.addConstraint(Sketcher.Constraint("Symmetric", 16, 2, 28, 2, -1, 1))
sketch5.addConstraint(Sketcher.Constraint("Symmetric", 2, 2, 4, 2, -2))
sketch5.addConstraint(Sketcher.Constraint("Symmetric", 17, 2, 24, 2, -2))
sketch5.addConstraint(Sketcher.Constraint("PointOnObject", 3, 2, -2))
sketch5.addConstraint(Sketcher.Constraint("Perpendicular", 1, 3))
sketch5.addConstraint(Sketcher.Constraint("Perpendicular", 3, 4))
sketch5.addConstraint(Sketcher.Constraint("Perpendicular", 4, 6))
sketch5.addConstraint(Sketcher.Constraint("Perpendicular", 8, 10))
sketch5.addConstraint(Sketcher.Constraint("Perpendicular", 11, 13))
sketch5.addConstraint(Sketcher.Constraint("Perpendicular", 13, 14))
sketch5.addConstraint(Sketcher.Constraint("Perpendicular", 14, 16))
sketch5.addConstraint(Sketcher.Constraint("Perpendicular", 16, 18))
sketch5.addConstraint(Sketcher.Constraint("Perpendicular", 18, 20))
sketch5.addConstraint(Sketcher.Constraint("Perpendicular", 20, 22))
sketch5.addConstraint(Sketcher.Constraint("Perpendicular", 22, 24))
sketch5.addConstraint(Sketcher.Constraint("Perpendicular", 24, 26))
sketch5.addConstraint(Sketcher.Constraint("Perpendicular", 26, 28))
sketch5.addConstraint(Sketcher.Constraint("Horizontal", 0, 2, 3, 2))
sketch5.addConstraint(Sketcher.Constraint("Horizontal", 3, 2, 6, 2))
sketch5.addConstraint(Sketcher.Constraint("Horizontal", 10, 2, 13, 2))
sketch5.addConstraint(Sketcher.Constraint("Horizontal", 15, 2, 18, 2))
sketch5.addConstraint(Sketcher.Constraint("Horizontal", 14, 2, 19, 2))
sketch5.addConstraint(Sketcher.Constraint("Equal", 12, 0))
sketch5.addConstraint(Sketcher.Constraint("Equal", 29, 15))
sketch5.addConstraint(Sketcher.Constraint("DistanceX", 2, 1, 2, 2, 2.14))
sketch5.addConstraint(Sketcher.Constraint("DistanceX", 17, 1, 17, 2, 0.44))
sketch5.addConstraint(Sketcher.Constraint("DistanceX", 2, 2, -1, 1, 0.2))
sketch5.addConstraint(Sketcher.Constraint("DistanceX", 15, 2, 16, 2, 0.1))
sketch5.addConstraint(Sketcher.Constraint("DistanceX", 14, 2, -1, 1, 1.59))
pad5 = body3.newObject("PartDesign::Pad", "Pad004")
pad5.Profile = sketch5
pad5.Length = 2.54
pad5.Reversed = True
doc.recompute()

chamfer3 = body3.newObject("PartDesign::Chamfer", "Chamfer002")
chamfer3.Base = (pad5, edges_at(pad5, [
    (-2.44, 2.54, -1.17),
    (-1.27, 2.54, -1.27),
    (-0.1, 2.54, -1.17),
    (0.1, 2.54, -1.17),
    (1.27, 2.54, -1.27),
    (2.44, 2.54, -1.17),
    (2.54, 2.54, 0),
    (2.44, 2.54, 1.17),
    (1.27, 2.54, 1.27),
    (-2.54, 5.08, 0),
    (0.1, 2.54, 1.17),
    (-0.1, 2.54, 1.17),
    (-1.27, 2.54, 1.27),
    (-2.44, 2.54, 1.17),
    (-2.54, 2.54, 0),
    (-2.44, 5.08, 1.17),
    (-1.27, 5.08, 1.27),
    (-0.1, 5.08, 1.17),
    (0.1, 5.08, 1.17),
    (1.27, 5.08, 1.27),
    (2.44, 5.08, 1.17),
    (2.54, 5.08, 0),
    (2.44, 5.08, -1.17),
    (1.27, 5.08, -1.27),
    (0.1, 5.08, -1.17),
    (-0.1, 5.08, -1.17),
    (-1.27, 5.08, -1.27),
    (-2.44, 5.08, -1.17),
]))
chamfer3.Size = 0.2

doc.recompute()
